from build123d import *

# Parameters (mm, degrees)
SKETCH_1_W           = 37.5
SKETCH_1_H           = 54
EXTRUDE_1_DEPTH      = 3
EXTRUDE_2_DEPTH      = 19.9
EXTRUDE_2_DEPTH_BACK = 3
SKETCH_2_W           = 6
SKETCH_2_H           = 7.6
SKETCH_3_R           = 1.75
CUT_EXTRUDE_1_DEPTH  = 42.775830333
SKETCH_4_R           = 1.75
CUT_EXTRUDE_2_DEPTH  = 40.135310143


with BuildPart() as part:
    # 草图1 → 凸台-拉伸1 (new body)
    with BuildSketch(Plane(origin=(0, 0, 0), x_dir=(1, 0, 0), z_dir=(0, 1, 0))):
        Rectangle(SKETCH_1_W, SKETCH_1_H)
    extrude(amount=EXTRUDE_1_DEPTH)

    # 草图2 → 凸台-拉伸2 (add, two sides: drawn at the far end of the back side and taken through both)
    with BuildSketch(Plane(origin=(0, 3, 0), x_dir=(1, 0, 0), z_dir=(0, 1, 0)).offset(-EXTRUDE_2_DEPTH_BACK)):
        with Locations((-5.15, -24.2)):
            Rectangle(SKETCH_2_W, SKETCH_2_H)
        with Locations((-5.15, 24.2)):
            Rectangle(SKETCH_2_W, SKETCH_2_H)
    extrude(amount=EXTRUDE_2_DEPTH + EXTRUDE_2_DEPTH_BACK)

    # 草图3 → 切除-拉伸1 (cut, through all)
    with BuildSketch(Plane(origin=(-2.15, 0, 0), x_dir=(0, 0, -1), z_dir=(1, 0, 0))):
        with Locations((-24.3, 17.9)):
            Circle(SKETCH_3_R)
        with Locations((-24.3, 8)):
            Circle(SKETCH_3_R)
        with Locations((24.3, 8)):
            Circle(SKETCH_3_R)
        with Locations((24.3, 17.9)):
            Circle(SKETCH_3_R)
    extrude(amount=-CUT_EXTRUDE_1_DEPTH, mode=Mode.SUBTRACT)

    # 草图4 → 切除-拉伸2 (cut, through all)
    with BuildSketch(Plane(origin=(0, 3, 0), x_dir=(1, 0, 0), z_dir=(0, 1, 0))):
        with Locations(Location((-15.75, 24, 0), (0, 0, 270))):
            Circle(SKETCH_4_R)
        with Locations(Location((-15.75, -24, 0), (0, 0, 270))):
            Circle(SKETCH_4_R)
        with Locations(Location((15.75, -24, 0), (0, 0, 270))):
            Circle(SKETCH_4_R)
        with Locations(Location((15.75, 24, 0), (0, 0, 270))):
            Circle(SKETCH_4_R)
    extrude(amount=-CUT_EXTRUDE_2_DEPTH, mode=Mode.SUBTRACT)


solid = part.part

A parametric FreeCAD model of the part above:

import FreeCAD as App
import Part
import Sketcher

doc = App.newDocument("Part")
body = doc.addObject("PartDesign::Body", "Body")

# Sketch on XZ plane
sketch1 = body.newObject("Sketcher::SketchObject", "Sketch")
sketch1.AttachmentSupport = (doc.getObject("XZ_Plane"), [""])
sketch1.MapMode = "FlatFace"
sketch1.addGeometry([
    Part.LineSegment(App.Vector(-19, -27, 0), App.Vector(-19, 27, 0)),
    Part.LineSegment(App.Vector(-19, 27, 0), App.Vector(19, 27, 0)),
    Part.LineSegment(App.Vector(19, 27, 0), App.Vector(19, -27, 0)),
    Part.LineSegment(App.Vector(19, -27, 0), App.Vector(-19, -27, 0)),
], False)
sketch1.addConstraint([
    Sketcher.Constraint("Coincident", 0, 2, 1, 1),
    Sketcher.Constraint("Coincident", 1, 2, 2, 1),
    Sketcher.Constraint("Coincident", 2, 2, 3, 1),
    Sketcher.Constraint("Coincident", 3, 2, 0, 1),
    Sketcher.Constraint("Vertical", 0),
    Sketcher.Constraint("Horizontal", 1),
    Sketcher.Constraint("Vertical", 2),
    Sketcher.Constraint("Horizontal", 3),
    Sketcher.Constraint("Symmetric", 0, 2, 2, 2, -1, 1),
    Sketcher.Constraint("DistanceY", 0, 1, 0, 2, 54.0),
    Sketcher.Constraint("DistanceX", 1, 1, 1, 2, 37.5),
])
pad1 = body.newObject("PartDesign::Pad", "Pad")
pad1.Profile = sketch1
pad1.Length = 3
pad1.Reversed = True

# Sketch on XZ plane
sketch2 = body.newObject("Sketcher::SketchObject", "Sketch001")
sketch2.AttachmentSupport = (doc.getObject("XZ_Plane"), [""])
sketch2.MapMode = "FlatFace"
sketch2.AttachmentOffset = App.Placement(App.Vector(0, 0, -3), App.Rotation())
sketch2.addGeometry([
    Part.LineSegment(App.Vector(-8, 20, 0), App.Vector(-8, 28, 0)),  # 0
    Part.LineSegment(App.Vector(-8, 28, 0), App.Vector(-2, 28, 0)),  # 1
    Part.LineSegment(App.Vector(-2, 28, 0), App.Vector(-2, 20, 0)),  # 2
    Part.LineSegment(App.Vector(-2, 20, 0), App.Vector(-8, 20, 0)),  # 3
    Part.LineSegment(App.Vector(-8, -28, 0), App.Vector(-8, -20, 0)),  # 4
    Part.LineSegment(App.Vector(-8, -20, 0), App.Vector(-2, -20, 0)),  # 5
    Part.LineSegment(App.Vector(-2, -20, 0), App.Vector(-2, -28, 0)),  # 6
    Part.LineSegment(App.Vector(-2, -28, 0), App.Vector(-8, -28, 0)),  # 7
], False)
sketch2.addConstraint([
    Sketcher.Constraint("Coincident", 0, 2, 1, 1),
    Sketcher.Constraint("Coincident", 1, 2, 2, 1),
    Sketcher.Constraint("Coincident", 2, 2, 3, 1),
    Sketcher.Constraint("Coincident", 3, 2, 0, 1),
    Sketcher.Constraint("Coincident", 4, 2, 5, 1),
    Sketcher.Constraint("Coincident", 5, 2, 6, 1),
    Sketcher.Constraint("Coincident", 6, 2, 7, 1),
    Sketcher.Constraint("Coincident", 7, 2, 4, 1),
    Sketcher.Constraint("Vertical", 0),
    Sketcher.Constraint("Horizontal", 1),
    Sketcher.Constraint("Vertical", 2),
    Sketcher.Constraint("Horizontal", 3),
    Sketcher.Constraint("Vertical", 4),
    Sketcher.Constraint("Horizontal", 5),
    Sketcher.Constraint("Vertical", 6),
    Sketcher.Constraint("Horizontal", 7),
    Sketcher.Constraint("Symmetric", 3, 2, 4, 2, -1),
    Sketcher.Constraint("Symmetric", 1, 2, 6, 2, -1),
    Sketcher.Constraint("DistanceX", 1, 1, 1, 2, 6.0),
    Sketcher.Constraint("DistanceY", 0, 1, 0, 2, 7.6),
    Sketcher.Constraint("DistanceY", -1, 1, 0, 2, 28.0),
    Sketcher.Constraint("DistanceX", 0, 2, -1, 1, 8.15),
])
pad2 = body.newObject("PartDesign::Pad", "Pad001")
pad2.Profile = sketch2
pad2.Type = "TwoLengths"
pad2.Length = 19.9
pad2.Length2 = 3
pad2.Reversed = True

# Sketch on YZ plane
sketch3 = body.newObject("Sketcher::SketchObject", "Sketch002")
sketch3.AttachmentSupport = (doc.getObject("YZ_Plane"), [""])
sketch3.MapMode = "FlatFace"
sketch3.AttachmentOffset = App.Placement(App.Vector(0, 0, -2.15), App.Rotation())
sketch3.addGeometry([
    Part.Circle(App.Vector(17.9, 24.3, 0), App.Vector(0, 0, 1), 1.8),
    Part.Circle(App.Vector(8, 24.3, 0), App.Vector(0, 0, 1), 1.8),
    Part.Circle(App.Vector(8, -24.3, 0), App.Vector(0, 0, 1), 1.8),
    Part.Circle(App.Vector(17.9, -24.3, 0), App.Vector(0, 0, 1), 1.8),
], False)
sketch3.addConstraint([
    Sketcher.Constraint("Equal", 0, 1),
    Sketcher.Constraint("Equal", 1, 2),
    Sketcher.Constraint("Equal", 2, 3),
    Sketcher.Constraint("Symmetric", 1, 3, 2, 3, -1),
    Sketcher.Constraint("Symmetric", 0, 3, 3, 3, -1),
    Sketcher.Constraint("Horizontal", 0, 3, 1, 3),
    Sketcher.Constraint("Diameter", 0, 3.5),
    Sketcher.Constraint("DistanceX", -1, 1, 1, 3, 8.0),
    Sketcher.Constraint("DistanceX", -1, 1, 0, 3, 17.9),
    Sketcher.Constraint("DistanceY", -1, 1, 0, 3, 24.3),
])
pocket1 = body.newObject("PartDesign::Pocket", "Pocket")
pocket1.Profile = sketch3
pocket1.Type = "ThroughAll"

# Sketch on XZ plane
sketch4 = body.newObject("Sketcher::SketchObject", "Sketch003")
sketch4.AttachmentSupport = (doc.getObject("XZ_Plane"), [""])
sketch4.MapMode = "FlatFace"
sketch4.AttachmentOffset = App.Placement(App.Vector(0, 0, -3), App.Rotation())
sketch4.addGeometry([
    Part.Circle(App.Vector(-15.8, -24, 0), App.Vector(0, 0, 1), 1.8),
    Part.Circle(App.Vector(-15.8, 24, 0), App.Vector(0, 0, 1), 1.8),
    Part.Circle(App.Vector(15.8, 24, 0), App.Vector(0, 0, 1), 1.8),
    Part.Circle(App.Vector(15.8, -24, 0), App.Vector(0, 0, 1), 1.8),
], False)
sketch4.addConstraint([
    Sketcher.Constraint("Equal", 0, 1),
    Sketcher.Constraint("Equal", 1, 2),
    Sketcher.Constraint("Equal", 2, 3),
    Sketcher.Constraint("Symmetric", 0, 3, 2, 3, -1, 1),
    Sketcher.Constraint("Symmetric", 1, 3, 3, 3, -1, 1),
    Sketcher.Constraint("Symmetric", 1, 3, 2, 3, -2),
    Sketcher.Constraint("Diameter", 0, 3.5),
    Sketcher.Constraint("DistanceY", 0, 3, -1, 1, 24.0),
    Sketcher.Constraint("DistanceX", 1, 3, 2, 3, 31.5),
])
pocket2 = body.newObject("PartDesign::Pocket", "Pocket001")
pocket2.Profile = sketch4
pocket2.Type = "ThroughAll"
pocket2.Reversed = True

doc.recompute()
